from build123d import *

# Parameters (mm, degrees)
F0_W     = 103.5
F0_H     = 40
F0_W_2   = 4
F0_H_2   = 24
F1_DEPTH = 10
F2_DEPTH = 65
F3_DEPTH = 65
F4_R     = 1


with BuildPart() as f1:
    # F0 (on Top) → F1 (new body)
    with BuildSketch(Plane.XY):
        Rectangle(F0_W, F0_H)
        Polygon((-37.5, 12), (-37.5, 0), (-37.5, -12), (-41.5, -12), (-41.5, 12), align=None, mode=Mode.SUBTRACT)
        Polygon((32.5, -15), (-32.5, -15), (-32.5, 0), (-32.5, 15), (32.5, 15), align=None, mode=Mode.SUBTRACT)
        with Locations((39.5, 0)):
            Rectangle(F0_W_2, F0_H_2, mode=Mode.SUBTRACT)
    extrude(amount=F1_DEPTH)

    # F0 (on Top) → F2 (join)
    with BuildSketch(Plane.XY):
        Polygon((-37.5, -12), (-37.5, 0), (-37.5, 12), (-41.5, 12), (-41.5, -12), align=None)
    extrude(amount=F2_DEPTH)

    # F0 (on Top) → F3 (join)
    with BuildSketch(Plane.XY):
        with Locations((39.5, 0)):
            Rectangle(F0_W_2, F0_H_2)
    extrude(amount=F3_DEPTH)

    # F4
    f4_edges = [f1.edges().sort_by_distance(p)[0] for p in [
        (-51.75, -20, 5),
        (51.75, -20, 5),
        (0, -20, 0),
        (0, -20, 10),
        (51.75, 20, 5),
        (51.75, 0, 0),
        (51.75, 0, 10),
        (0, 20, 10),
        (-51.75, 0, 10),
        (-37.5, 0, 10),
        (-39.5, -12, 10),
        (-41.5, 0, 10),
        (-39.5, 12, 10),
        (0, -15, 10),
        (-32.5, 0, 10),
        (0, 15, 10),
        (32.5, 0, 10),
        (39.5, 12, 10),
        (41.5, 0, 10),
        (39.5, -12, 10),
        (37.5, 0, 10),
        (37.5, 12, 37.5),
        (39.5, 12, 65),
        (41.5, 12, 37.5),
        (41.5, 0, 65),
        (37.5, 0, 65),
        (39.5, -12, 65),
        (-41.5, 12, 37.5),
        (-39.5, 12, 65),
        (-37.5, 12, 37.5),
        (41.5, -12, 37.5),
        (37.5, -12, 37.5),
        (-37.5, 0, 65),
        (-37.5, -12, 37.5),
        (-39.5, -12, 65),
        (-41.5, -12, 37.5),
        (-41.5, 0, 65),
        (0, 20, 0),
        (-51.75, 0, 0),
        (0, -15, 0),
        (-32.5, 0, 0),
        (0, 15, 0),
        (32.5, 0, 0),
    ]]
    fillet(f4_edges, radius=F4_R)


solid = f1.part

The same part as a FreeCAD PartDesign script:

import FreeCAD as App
import Part
import Sketcher


def edges_at(feature, points):
    """Names of the edges that pass closest to the given points."""
    edges = feature.Shape.Edges
    near = lambda p: min(range(len(edges)), key=lambda i: edges[i].distToShape(Part.Vertex(*p))[0])
    return sorted({f"Edge{near(p) + 1}" for p in points})

doc = App.newDocument("Part")
body = doc.addObject("PartDesign::Body", "Body")

# Sketch on XY plane
sketch1 = doc.addObject("Sketcher::SketchObject", "Sketch")
body.addObject(sketch1)
sketch1.AttachmentSupport = (doc.XY_Plane, [""])
sketch1.MapMode = "FlatFace"
sketch1.addGeometry(Part.LineSegment(App.Vector(-51.8, 20, 0), App.Vector(-51.8, -20, 0)), False)
sketch1.addGeometry(Part.LineSegment(App.Vector(-51.8, -20, 0), App.Vector(51.8, -20, 0)), False)
sketch1.addGeometry(Part.LineSegment(App.Vector(51.8, -20, 0), App.Vector(51.8, 20, 0)), False)
sketch1.addGeometry(Part.LineSegment(App.Vector(51.8, 20, 0), App.Vector(-51.8, 20, 0)), False)
sketch1.addGeometry(Part.LineSegment(App.Vector(-41.5, 12, 0), App.Vector(-37.5, 12, 0)), False)
sketch1.addGeometry(Part.LineSegment(App.Vector(-37.5, 12, 0), App.Vector(-37.5, -12, 0)), False)
sketch1.addGeometry(Part.LineSegment(App.Vector(-37.5, -12, 0), App.Vector(-41.5, -12, 0)), False)
sketch1.addGeometry(Part.LineSegment(App.Vector(-41.5, -12, 0), App.Vector(-41.5, 12, 0)), False)
sketch1.addGeometry(Part.LineSegment(App.Vector(32.5, 15, 0), App.Vector(32.5, -15, 0)), False)
sketch1.addGeometry(Part.LineSegment(App.Vector(32.5, -15, 0), App.Vector(-32.5, -15, 0)), False)
sketch1.addGeometry(Part.LineSegment(App.Vector(-32.5, -15, 0), App.Vector(-32.5, 15, 0)), False)
sketch1.addGeometry(Part.LineSegment(App.Vector(-32.5, 15, 0), App.Vector(32.5, 15, 0)), False)
sketch1.addGeometry(Part.LineSegment(App.Vector(41.5, -12, 0), App.Vector(37.5, -12, 0)), False)
sketch1.addGeometry(Part.LineSegment(App.Vector(37.5, -12, 0), App.Vector(37.5, 12, 0)), False)
sketch1.addGeometry(Part.LineSegment(App.Vector(37.5, 12, 0), App.Vector(41.5, 12, 0)), False)
sketch1.addGeometry(Part.LineSegment(App.Vector(41.5, 12, 0), App.Vector(41.5, -12, 0)), False)
sketch1.addConstraint(Sketcher.Constraint("Coincident", 0, 2, 1, 1))
sketch1.addConstraint(Sketcher.Constraint("Coincident", 1, 2, 2, 1))
sketch1.addConstraint(Sketcher.Constraint("Coincident", 2, 2, 3, 1))
sketch1.addConstraint(Sketcher.Constraint("Coincident", 3, 2, 0, 1))
sketch1.addConstraint(Sketcher.Constraint("Coincident", 4, 2, 5, 1))
sketch1.addConstraint(Sketcher.Constraint("Coincident", 5, 2, 6, 1))
sketch1.addConstraint(Sketcher.Constraint("Coincident", 6, 2, 7, 1))
sketch1.addConstraint(Sketcher.Constraint("Coincident", 7, 2, 4, 1))
sketch1.addConstraint(Sketcher.Constraint("Coincident", 8, 2, 9, 1))
sketch1.addConstraint(Sketcher.Constraint("Coincident", 9, 2, 10, 1))
sketch1.addConstraint(Sketcher.Constraint("Coincident", 10, 2, 11, 1))
sketch1.addConstraint(Sketcher.Constraint("Coincident", 11, 2, 8, 1))
sketch1.addConstraint(Sketcher.Constraint("Coincident", 12, 2, 13, 1))
sketch1.addConstraint(Sketcher.Constraint("Coincident", 13, 2, 14, 1))
sketch1.addConstraint(Sketcher.Constraint("Coincident", 14, 2, 15, 1))
sketch1.addConstraint(Sketcher.Constraint("Coincident", 15, 2, 12, 1))
sketch1.addConstraint(Sketcher.Constraint("Vertical", 0))
sketch1.addConstraint(Sketcher.Constraint("Horizontal", 1))
sketch1.addConstraint(Sketcher.Constraint("Vertical", 2))
sketch1.addConstraint(Sketcher.Constraint("Horizontal", 3))
sketch1.addConstraint(Sketcher.Constraint("Horizontal", 4))
sketch1.addConstraint(Sketcher.Constraint("Vertical", 5))
sketch1.addConstraint(Sketcher.Constraint("Horizontal", 6))
sketch1.addConstraint(Sketcher.Constraint("Vertical", 7))
sketch1.addConstraint(Sketcher.Constraint("Vertical", 8))
sketch1.addConstraint(Sketcher.Constraint("Horizontal", 9))
sketch1.addConstraint(Sketcher.Constraint("Vertical", 10))
sketch1.addConstraint(Sketcher.Constraint("Horizontal", 11))
sketch1.addConstraint(Sketcher.Constraint("Horizontal", 12))
sketch1.addConstraint(Sketcher.Constraint("Vertical", 13))
sketch1.addConstraint(Sketcher.Constraint("Horizontal", 14))
sketch1.addConstraint(Sketcher.Constraint("Vertical", 15))
sketch1.addConstraint(Sketcher.Constraint("Symmetric", 0, 2, 2, 2, -1, 1))
sketch1.addConstraint(Sketcher.Constraint("Symmetric", 8, 2, 10, 2, -1, 1))
sketch1.addConstraint(Sketcher.Constraint("Symmetric", 4, 2, 12, 2, -1, 1))
sketch1.addConstraint(Sketcher.Constraint("Symmetric", 6, 2, 14, 2, -1, 1))
sketch1.addConstraint(Sketcher.Constraint("Horizontal", 6, 2, 12, 2))
sketch1.addConstraint(Sketcher.Constraint("DistanceX", 4, 1, 4, 2, 4.0))
sketch1.addConstraint(Sketcher.Constraint("DistanceX", 9, 2, 9, 1, 65.0))
sketch1.addConstraint(Sketcher.Constraint("DistanceY", 0, 2, 0, 1, 40.0))
sketch1.addConstraint(Sketcher.Constraint("DistanceY", 5, 2, 5, 1, 24.0))
sketch1.addConstraint(Sketcher.Constraint("DistanceY", 8, 2, 8, 1, 30.0))
sketch1.addConstraint(Sketcher.Constraint("DistanceX", 1, 1, 1, 2, 103.5))
sketch1.addConstraint(Sketcher.Constraint("DistanceX", 5, 2, 8, 2, 70.0))
pad1 = doc.addObject("PartDesign::Pad", "Pad")
body.addObject(pad1)
pad1.Profile = sketch1
pad1.Length = 10

# Sketch on XY plane
sketch2 = doc.addObject("Sketcher::SketchObject", "Sketch001")
body.addObject(sketch2)
sketch2.AttachmentSupport = (doc.XY_Plane, [""])
sketch2.MapMode = "FlatFace"
sketch2.addGeometry(Part.LineSegment(App.Vector(-37.5, -12, 0), App.Vector(-37.5, 12, 0)), False)
sketch2.addGeometry(Part.LineSegment(App.Vector(-37.5, 12, 0), App.Vector(-41.5, 12, 0)), False)
sketch2.addGeometry(Part.LineSegment(App.Vector(-41.5, 12, 0), App.Vector(-41.5, -12, 0)), False)
sketch2.addGeometry(Part.LineSegment(App.Vector(-41.5, -12, 0), App.Vector(-37.5, -12, 0)), False)
sketch2.addConstraint(Sketcher.Constraint("Coincident", 0, 2, 1, 1))
sketch2.addConstraint(Sketcher.Constraint("Coincident", 1, 2, 2, 1))
sketch2.addConstraint(Sketcher.Constraint("Coincident", 2, 2, 3, 1))
sketch2.addConstraint(Sketcher.Constraint("Coincident", 3, 2, 0, 1))
sketch2.addConstraint(Sketcher.Constraint("Vertical", 0))
sketch2.addConstraint(Sketcher.Constraint("Horizontal", 1))
sketch2.addConstraint(Sketcher.Constraint("Vertical", 2))
sketch2.addConstraint(Sketcher.Constraint("Horizontal", 3))
sketch2.addConstraint(Sketcher.Constraint("DistanceX", 1, 2, 1, 1, 4.0))
sketch2.addConstraint(Sketcher.Constraint("DistanceY", 0, 1, 0, 2, 24.0))
sketch2.addConstraint(Sketcher.Constraint("DistanceY", -1, 1, 0, 2, 12.0))
sketch2.addConstraint(Sketcher.Constraint("DistanceX", 0, 2, -1, 1, 37.5))
pad2 = doc.addObject("PartDesign::Pad", "Pad001")
body.addObject(pad2)
pad2.Profile = sketch2
pad2.Length = 65

# Sketch on XY plane
sketch3 = doc.addObject("Sketcher::SketchObject", "Sketch002")
body.addObject(sketch3)
sketch3.AttachmentSupport = (doc.XY_Plane, [""])
sketch3.MapMode = "FlatFace"
sketch3.addGeometry(Part.LineSegment(App.Vector(37.5, 12, 0), App.Vector(37.5, -12, 0)), False)
sketch3.addGeometry(Part.LineSegment(App.Vector(37.5, -12, 0), App.Vector(41.5, -12, 0)), False)
sketch3.addGeometry(Part.LineSegment(App.Vector(41.5, -12, 0), App.Vector(41.5, 12, 0)), False)
sketch3.addGeometry(Part.LineSegment(App.Vector(41.5, 12, 0), App.Vector(37.5, 12, 0)), False)
sketch3.addConstraint(Sketcher.Constraint("Coincident", 0, 2, 1, 1))
sketch3.addConstraint(Sketcher.Constraint("Coincident", 1, 2, 2, 1))
sketch3.addConstraint(Sketcher.Constraint("Coincident", 2, 2, 3, 1))
sketch3.addConstraint(Sketcher.Constraint("Coincident", 3, 2, 0, 1))
sketch3.addConstraint(Sketcher.Constraint("Vertical", 0))
sketch3.addConstraint(Sketcher.Constraint("Horizontal", 1))
sketch3.addConstraint(Sketcher.Constraint("Vertical", 2))
sketch3.addConstraint(Sketcher.Constraint("Horizontal", 3))
sketch3.addConstraint(Sketcher.Constraint("DistanceX", 1, 1, 1, 2, 4.0))
sketch3.addConstraint(Sketcher.Constraint("DistanceY", 0, 2, 0, 1, 24.0))
sketch3.addConstraint(Sketcher.Constraint("DistanceY", 0, 2, -1, 1, 12.0))
sketch3.addConstraint(Sketcher.Constraint("DistanceX", -1, 1, 0, 2, 37.5))
pad3 = doc.addObject("PartDesign::Pad", "Pad002")
body.addObject(pad3)
pad3.Profile = sketch3
pad3.Length = 65
doc.recompute()

fillet = doc.addObject("PartDesign::Fillet", "Fillet")
body.addObject(fillet)
fillet.Base = (pad3, edges_at(pad3, [
    (-51.75, -20, 5),
    (51.75, -20, 5),
    (0, -20, 0),
    (0, -20, 10),
    (51.75, 20, 5),
    (51.75, 0, 0),
    (51.75, 0, 10),
    (0, 20, 10),
    (-51.75, 0, 10),
    (-37.5, 0, 10),
    (-39.5, -12, 10),
    (-41.5, 0, 10),
    (-39.5, 12, 10),
    (0, -15, 10),
    (-32.5, 0, 10),
    (0, 15, 10),
    (32.5, 0, 10),
    (39.5, 12, 10),
    (41.5, 0, 10),
    (39.5, -12, 10),
    (37.5, 0, 10),
    (37.5, 12, 37.5),
    (39.5, 12, 65),
    (41.5, 12, 37.5),
    (41.5, 0, 65),
    (37.5, 0, 65),
    (39.5, -12, 65),
    (-41.5, 12, 37.5),
    (-39.5, 12, 65),
    (-37.5, 12, 37.5),
    (41.5, -12, 37.5),
    (37.5, -12, 37.5),
    (-37.5, 0, 65),
    (-37.5, -12, 37.5),
    (-39.5, -12, 65),
    (-41.5, -12, 37.5),
    (-41.5, 0, 65),
    (0, 20, 0),
    (-51.75, 0, 0),
    (0, -15, 0),
    (-32.5, 0, 0),
    (0, 15, 0),
    (32.5, 0, 0),
]))
fillet.Radius = 1

doc.recompute()
